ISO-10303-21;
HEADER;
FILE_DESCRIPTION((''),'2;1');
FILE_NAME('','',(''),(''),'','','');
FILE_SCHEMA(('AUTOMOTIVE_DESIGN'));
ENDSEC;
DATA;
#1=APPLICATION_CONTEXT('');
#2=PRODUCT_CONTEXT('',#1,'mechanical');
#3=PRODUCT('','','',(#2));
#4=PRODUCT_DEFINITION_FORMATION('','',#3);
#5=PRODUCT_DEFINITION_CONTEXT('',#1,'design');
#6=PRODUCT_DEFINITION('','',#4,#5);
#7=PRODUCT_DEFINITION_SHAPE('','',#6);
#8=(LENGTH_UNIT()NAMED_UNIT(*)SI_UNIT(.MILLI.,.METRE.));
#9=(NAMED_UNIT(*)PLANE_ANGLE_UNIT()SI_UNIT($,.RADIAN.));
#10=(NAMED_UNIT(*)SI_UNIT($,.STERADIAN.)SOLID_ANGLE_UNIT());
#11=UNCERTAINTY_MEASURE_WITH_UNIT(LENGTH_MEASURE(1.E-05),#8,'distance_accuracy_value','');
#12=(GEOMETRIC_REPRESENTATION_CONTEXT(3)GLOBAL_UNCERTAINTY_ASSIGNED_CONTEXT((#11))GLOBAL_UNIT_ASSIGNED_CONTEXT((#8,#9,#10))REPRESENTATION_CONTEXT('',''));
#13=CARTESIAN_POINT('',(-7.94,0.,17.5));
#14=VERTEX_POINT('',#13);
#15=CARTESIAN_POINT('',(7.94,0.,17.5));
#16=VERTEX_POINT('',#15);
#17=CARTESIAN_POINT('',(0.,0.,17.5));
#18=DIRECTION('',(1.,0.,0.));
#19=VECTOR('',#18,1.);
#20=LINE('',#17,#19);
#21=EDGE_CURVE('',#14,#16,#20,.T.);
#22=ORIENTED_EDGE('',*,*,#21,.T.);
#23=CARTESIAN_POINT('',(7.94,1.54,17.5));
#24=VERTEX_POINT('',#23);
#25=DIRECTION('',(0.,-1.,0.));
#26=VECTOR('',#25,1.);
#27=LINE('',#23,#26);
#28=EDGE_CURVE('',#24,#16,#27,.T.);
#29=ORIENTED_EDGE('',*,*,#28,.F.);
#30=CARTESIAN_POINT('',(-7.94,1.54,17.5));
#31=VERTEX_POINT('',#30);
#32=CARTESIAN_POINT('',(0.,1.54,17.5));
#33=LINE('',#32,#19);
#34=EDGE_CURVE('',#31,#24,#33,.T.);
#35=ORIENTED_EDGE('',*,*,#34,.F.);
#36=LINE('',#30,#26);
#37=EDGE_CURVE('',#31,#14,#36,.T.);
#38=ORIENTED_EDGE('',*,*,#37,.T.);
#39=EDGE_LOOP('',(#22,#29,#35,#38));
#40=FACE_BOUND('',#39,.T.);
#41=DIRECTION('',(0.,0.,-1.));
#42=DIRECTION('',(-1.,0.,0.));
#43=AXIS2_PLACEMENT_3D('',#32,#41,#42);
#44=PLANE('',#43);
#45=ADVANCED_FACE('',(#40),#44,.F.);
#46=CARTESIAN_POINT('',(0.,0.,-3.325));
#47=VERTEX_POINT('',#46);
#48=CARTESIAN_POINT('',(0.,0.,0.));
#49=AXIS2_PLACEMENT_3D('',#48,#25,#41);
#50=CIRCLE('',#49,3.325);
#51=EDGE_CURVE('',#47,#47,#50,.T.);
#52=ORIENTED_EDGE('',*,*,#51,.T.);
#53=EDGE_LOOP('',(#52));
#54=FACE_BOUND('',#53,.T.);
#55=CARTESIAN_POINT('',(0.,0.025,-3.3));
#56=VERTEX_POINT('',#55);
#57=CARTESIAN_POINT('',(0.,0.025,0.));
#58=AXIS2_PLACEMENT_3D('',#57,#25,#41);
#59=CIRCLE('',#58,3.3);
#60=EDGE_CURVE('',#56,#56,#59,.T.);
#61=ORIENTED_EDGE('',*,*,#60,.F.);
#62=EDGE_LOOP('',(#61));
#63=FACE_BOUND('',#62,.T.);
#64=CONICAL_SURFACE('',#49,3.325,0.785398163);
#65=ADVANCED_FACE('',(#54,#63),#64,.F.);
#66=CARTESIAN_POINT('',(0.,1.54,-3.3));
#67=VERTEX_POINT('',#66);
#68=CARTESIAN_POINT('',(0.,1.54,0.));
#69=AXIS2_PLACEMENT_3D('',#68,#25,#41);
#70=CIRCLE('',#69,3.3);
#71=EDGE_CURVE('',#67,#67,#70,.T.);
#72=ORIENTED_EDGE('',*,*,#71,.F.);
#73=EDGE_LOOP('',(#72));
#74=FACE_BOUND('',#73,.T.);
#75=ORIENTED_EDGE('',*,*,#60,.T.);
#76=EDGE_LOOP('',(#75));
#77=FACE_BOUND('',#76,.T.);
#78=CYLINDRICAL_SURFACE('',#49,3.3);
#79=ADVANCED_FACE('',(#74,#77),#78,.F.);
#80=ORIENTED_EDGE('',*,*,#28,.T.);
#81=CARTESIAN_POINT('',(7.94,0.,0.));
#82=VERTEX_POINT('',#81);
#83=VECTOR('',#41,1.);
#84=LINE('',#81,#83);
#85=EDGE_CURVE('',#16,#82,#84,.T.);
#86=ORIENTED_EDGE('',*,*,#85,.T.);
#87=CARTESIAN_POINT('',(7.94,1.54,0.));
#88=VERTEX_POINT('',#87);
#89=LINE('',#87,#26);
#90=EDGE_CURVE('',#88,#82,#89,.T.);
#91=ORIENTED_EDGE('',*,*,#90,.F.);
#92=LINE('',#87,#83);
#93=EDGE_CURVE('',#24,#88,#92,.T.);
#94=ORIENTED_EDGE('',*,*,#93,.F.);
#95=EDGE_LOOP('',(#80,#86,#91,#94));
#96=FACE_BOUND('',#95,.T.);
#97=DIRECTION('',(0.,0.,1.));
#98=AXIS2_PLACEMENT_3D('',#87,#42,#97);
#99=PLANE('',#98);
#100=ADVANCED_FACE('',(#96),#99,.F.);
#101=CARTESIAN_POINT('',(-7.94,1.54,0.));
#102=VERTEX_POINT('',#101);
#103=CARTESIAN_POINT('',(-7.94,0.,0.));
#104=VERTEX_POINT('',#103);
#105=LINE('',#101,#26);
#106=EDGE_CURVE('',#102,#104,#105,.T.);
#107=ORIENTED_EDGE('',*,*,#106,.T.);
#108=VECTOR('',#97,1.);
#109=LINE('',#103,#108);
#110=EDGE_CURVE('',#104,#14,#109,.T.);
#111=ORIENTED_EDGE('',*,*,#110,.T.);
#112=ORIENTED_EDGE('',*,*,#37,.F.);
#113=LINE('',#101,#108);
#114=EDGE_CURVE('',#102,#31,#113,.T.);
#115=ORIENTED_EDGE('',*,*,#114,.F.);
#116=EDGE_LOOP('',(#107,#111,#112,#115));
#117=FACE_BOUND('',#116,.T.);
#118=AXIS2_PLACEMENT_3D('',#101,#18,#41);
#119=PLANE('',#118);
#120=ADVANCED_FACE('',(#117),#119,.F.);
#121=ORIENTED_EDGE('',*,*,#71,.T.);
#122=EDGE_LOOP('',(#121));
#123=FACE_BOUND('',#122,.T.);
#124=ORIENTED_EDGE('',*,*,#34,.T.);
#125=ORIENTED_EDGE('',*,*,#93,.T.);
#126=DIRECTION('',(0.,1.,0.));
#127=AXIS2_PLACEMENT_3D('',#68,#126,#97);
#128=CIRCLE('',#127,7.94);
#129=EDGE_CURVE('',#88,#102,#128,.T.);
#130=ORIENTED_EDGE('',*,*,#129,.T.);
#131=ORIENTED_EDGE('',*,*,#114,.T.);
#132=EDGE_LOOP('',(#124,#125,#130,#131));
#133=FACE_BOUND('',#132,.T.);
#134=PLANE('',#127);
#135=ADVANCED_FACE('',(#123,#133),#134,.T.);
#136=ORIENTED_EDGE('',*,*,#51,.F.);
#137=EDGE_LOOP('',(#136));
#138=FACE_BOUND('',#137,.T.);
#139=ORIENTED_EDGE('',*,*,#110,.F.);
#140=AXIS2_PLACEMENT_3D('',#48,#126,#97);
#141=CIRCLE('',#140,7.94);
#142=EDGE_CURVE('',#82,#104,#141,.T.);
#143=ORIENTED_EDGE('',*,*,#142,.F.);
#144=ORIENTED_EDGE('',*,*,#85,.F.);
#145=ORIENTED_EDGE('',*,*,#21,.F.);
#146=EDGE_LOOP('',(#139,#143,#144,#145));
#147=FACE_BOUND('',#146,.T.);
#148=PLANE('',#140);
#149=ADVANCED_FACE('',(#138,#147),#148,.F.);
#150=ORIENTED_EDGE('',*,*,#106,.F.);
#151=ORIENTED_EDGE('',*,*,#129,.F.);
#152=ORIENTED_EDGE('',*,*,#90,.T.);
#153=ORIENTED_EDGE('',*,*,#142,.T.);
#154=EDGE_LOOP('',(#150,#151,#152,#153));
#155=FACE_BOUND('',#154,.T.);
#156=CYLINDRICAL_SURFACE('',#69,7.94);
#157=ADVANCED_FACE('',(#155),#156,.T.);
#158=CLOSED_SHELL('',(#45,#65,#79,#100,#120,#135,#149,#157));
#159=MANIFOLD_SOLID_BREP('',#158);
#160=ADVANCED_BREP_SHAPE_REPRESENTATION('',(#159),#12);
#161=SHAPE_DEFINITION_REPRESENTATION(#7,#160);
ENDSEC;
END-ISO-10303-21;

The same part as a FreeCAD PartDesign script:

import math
import FreeCAD as App
import Part
import Sketcher
Q = App.Units.Quantity


def add_polygon(sketch, points):
    """Adds a closed chain of lines whose ends are joined by coincident constraints."""
    first, n = sketch.GeometryCount, len(points)
    for a, b in zip(points, points[1:] + points[:1]):
        sketch.addGeometry(Part.LineSegment(App.Vector(*a, 0), App.Vector(*b, 0)), False)
    for i in range(n):
        sketch.addConstraint(Sketcher.Constraint("Coincident", first + i, 2, first + (i + 1) % n, 1))

doc = App.newDocument("Part")
body = doc.addObject("PartDesign::Body", "Body")

# Sketch on XZ plane
sketch1 = doc.addObject("Sketcher::SketchObject", "Sketch")
body.addObject(sketch1)
sketch1.AttachmentSupport = (doc.XZ_Plane, [""])
sketch1.MapMode = "FlatFace"
sketch1.addGeometry(Part.ArcOfCircle(Part.Circle(App.Vector(0, 0, 0), App.Vector(0, 0, 1), 8), math.radians(180), math.radians(360)), False)
sketch1.addGeometry(Part.LineSegment(App.Vector(-8, 0, 0), App.Vector(-8, 18, 0)), False)
sketch1.addGeometry(Part.LineSegment(App.Vector(-8, 18, 0), App.Vector(8, 18, 0)), False)
sketch1.addGeometry(Part.LineSegment(App.Vector(8, 18, 0), App.Vector(8, 0, 0)), False)
sketch1.addConstraint(Sketcher.Constraint("Tangent", 0, 1, 1, 1))
sketch1.addConstraint(Sketcher.Constraint("Coincident", 1, 2, 2, 1))
sketch1.addConstraint(Sketcher.Constraint("Coincident", 2, 2, 3, 1))
sketch1.addConstraint(Sketcher.Constraint("Tangent", 3, 2, 0, 2))
sketch1.addConstraint(Sketcher.Constraint("Vertical", 1))
sketch1.addConstraint(Sketcher.Constraint("Horizontal", 2))
sketch1.addConstraint(Sketcher.Constraint("Vertical", 3))
sketch1.addConstraint(Sketcher.Constraint("Coincident", 0, 3, -1, 1))
sketch1.addConstraint(Sketcher.Constraint("Radius", 0, 7.94))
sketch1.addConstraint(Sketcher.Constraint("DistanceY", 1, 1, 1, 2, 17.5))
pad1 = doc.addObject("PartDesign::Pad", "Pad")
body.addObject(pad1)
pad1.Profile = sketch1
pad1.Length = 1.54
pad1.Reversed = True

# Sketch on YZ plane
sketch2 = doc.addObject("Sketcher::SketchObject", "Sketch001")
body.addObject(sketch2)
sketch2.AttachmentSupport = (doc.YZ_Plane, [""])
sketch2.MapMode = "FlatFace"
add_polygon(sketch2, [(1.54, 0), (0, 0), (0, -3.325), (0.025, -3.3), (1.54, -3.3)])  # lines 0-4
sketch2.addConstraint(Sketcher.Constraint("Horizontal", 0))
sketch2.addConstraint(Sketcher.Constraint("Vertical", 1))
sketch2.addConstraint(Sketcher.Constraint("Horizontal", 3))
sketch2.addConstraint(Sketcher.Constraint("Vertical", 4))
sketch2.addConstraint(Sketcher.Constraint("Coincident", 0, 2, -1, 1))
sketch2.addConstraint(Sketcher.Constraint("Angle", 2, Q("45 deg")))
sketch2.addConstraint(Sketcher.Constraint("DistanceY", 4, 1, 4, 2, 3.3))
sketch2.addConstraint(Sketcher.Constraint("DistanceX", 0, 2, 0, 1, 1.54))
sketch2.addConstraint(Sketcher.Constraint("DistanceX", 3, 1, 3, 2, 1.515))
groove = doc.addObject("PartDesign::Groove", "Groove")
body.addObject(groove)
groove.Profile = sketch2
groove.ReferenceAxis = (sketch2, ["H_Axis"])
groove.Angle = 360

doc.recompute()
